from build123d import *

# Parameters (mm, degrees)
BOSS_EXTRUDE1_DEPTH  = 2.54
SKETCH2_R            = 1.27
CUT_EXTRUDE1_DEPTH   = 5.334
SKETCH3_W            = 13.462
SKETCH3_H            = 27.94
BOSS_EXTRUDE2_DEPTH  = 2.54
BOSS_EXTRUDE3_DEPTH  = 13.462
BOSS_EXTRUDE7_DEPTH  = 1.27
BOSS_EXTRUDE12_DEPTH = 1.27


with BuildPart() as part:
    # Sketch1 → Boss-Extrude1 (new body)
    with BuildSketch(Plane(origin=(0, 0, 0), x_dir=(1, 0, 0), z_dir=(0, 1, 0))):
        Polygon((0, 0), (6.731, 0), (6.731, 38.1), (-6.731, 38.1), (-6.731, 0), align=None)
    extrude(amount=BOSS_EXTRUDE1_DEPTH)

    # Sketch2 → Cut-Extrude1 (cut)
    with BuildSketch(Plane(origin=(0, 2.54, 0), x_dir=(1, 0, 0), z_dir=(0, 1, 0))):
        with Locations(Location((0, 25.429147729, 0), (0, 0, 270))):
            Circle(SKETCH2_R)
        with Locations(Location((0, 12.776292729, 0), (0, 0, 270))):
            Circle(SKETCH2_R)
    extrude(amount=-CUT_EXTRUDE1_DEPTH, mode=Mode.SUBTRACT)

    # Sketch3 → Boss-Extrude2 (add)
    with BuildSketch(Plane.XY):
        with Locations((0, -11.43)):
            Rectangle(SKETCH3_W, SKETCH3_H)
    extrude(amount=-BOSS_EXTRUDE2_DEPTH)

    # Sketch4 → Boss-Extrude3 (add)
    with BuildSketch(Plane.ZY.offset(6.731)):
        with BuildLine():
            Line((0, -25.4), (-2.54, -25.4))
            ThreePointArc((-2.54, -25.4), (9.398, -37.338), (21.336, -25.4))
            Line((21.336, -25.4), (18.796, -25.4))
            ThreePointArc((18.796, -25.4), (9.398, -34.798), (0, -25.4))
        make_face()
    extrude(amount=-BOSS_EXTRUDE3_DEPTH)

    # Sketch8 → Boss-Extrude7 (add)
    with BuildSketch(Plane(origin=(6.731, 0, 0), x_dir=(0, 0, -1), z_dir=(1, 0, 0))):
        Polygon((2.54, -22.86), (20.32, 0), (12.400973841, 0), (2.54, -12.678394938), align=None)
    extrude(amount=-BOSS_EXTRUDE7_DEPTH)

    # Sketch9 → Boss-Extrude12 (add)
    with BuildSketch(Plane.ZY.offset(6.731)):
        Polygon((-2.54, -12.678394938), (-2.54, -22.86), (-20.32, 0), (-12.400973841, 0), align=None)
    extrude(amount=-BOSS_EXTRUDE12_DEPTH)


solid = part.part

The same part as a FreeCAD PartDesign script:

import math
import FreeCAD as App
import Part
import Sketcher

V = App.Vector
Q = App.Units.Quantity

doc = App.newDocument("Part")
body = doc.addObject("PartDesign::Body", "Body")

# Sketch on XZ plane
sketch1 = doc.addObject("Sketcher::SketchObject", "Sketch")
body.addObject(sketch1)
sketch1.AttachmentSupport = (doc.XZ_Plane, [""])
sketch1.MapMode = "FlatFace"
sketch1.addGeometry([
    Part.LineSegment(V(6.731, 0, 0), V(6.731, -38.1, 0)),
    Part.LineSegment(V(6.731, -38.1, 0), V(-6.731, -38.1, 0)),
    Part.LineSegment(V(-6.731, -38.1, 0), V(-6.731, 0, 0)),
    Part.LineSegment(V(-6.731, 0, 0), V(6.731, 0, 0)),
], False)
sketch1.addConstraint([
    Sketcher.Constraint("Coincident", 0, 2, 1, 1),
    Sketcher.Constraint("Coincident", 1, 2, 2, 1),
    Sketcher.Constraint("Coincident", 2, 2, 3, 1),
    Sketcher.Constraint("Coincident", 3, 2, 0, 1),
    Sketcher.Constraint("Vertical", 0),
    Sketcher.Constraint("Horizontal", 1),
    Sketcher.Constraint("Vertical", 2),
    Sketcher.Constraint("Horizontal", 3),
    Sketcher.Constraint("Symmetric", 2, 2, 3, 2, -1, 1),
    Sketcher.Constraint("DistanceY", 0, 2, 0, 1, Q("1.5 in")),
    Sketcher.Constraint("DistanceX", 1, 2, 1, 1, Q("0.53 in")),
])
pad1 = doc.addObject("PartDesign::Pad", "Pad")
body.addObject(pad1)
pad1.Profile = sketch1
pad1.Length = Q("0.1 in")
pad1.Reversed = True

# Sketch on XZ plane
sketch2 = doc.addObject("Sketcher::SketchObject", "Sketch001")
body.addObject(sketch2)
sketch2.AttachmentSupport = (doc.XZ_Plane, [""])
sketch2.MapMode = "FlatFace"
sketch2.AttachmentOffset = App.Placement(V(0, 0, -0.1 * 25.4), App.Rotation())
sketch2.addGeometry([
    Part.Circle(V(0, -25.429148, 0), V(0, 0, 1), 1.27),
    Part.Circle(V(0, -12.776293, 0), V(0, 0, 1), 1.27),
], False)
sketch2.addConstraint([
    Sketcher.Constraint("Equal", 0, 1),
    Sketcher.Constraint("PointOnObject", 0, 3, -2),
    Sketcher.Constraint("PointOnObject", 1, 3, -2),
    Sketcher.Constraint("Diameter", 0, Q("0.1 in")),
    Sketcher.Constraint("DistanceY", 0, 3, -1, 1, Q("25.429148 mm")),
    Sketcher.Constraint("DistanceY", 1, 3, -1, 1, Q("12.776293 mm")),
])
pocket1 = doc.addObject("PartDesign::Pocket", "Pocket")
body.addObject(pocket1)
pocket1.Profile = sketch2
pocket1.Length = Q("0.21 in")
pocket1.Reversed = True

# Sketch on XY plane
sketch3 = doc.addObject("Sketcher::SketchObject", "Sketch002")
body.addObject(sketch3)
sketch3.AttachmentSupport = (doc.XY_Plane, [""])
sketch3.MapMode = "FlatFace"
sketch3.addGeometry([
    Part.LineSegment(V(-6.731, 2.54, 0), V(-6.731, -25.4, 0)),
    Part.LineSegment(V(-6.731, -25.4, 0), V(6.731, -25.4, 0)),
    Part.LineSegment(V(6.731, -25.4, 0), V(6.731, 2.54, 0)),
    Part.LineSegment(V(6.731, 2.54, 0), V(-6.731, 2.54, 0)),
], False)
sketch3.addConstraint([
    Sketcher.Constraint("Coincident", 0, 2, 1, 1),
    Sketcher.Constraint("Coincident", 1, 2, 2, 1),
    Sketcher.Constraint("Coincident", 2, 2, 3, 1),
    Sketcher.Constraint("Coincident", 3, 2, 0, 1),
    Sketcher.Constraint("Vertical", 0),
    Sketcher.Constraint("Horizontal", 1),
    Sketcher.Constraint("Vertical", 2),
    Sketcher.Constraint("Horizontal", 3),
    Sketcher.Constraint("DistanceY", 0, 2, 0, 1, Q("1.1 in")),
    Sketcher.Constraint("DistanceY", 0, 2, -1, 1, Q("1 in")),
    Sketcher.Constraint("DistanceX", 1, 1, 1, 2, Q("0.53 in")),
    Sketcher.Constraint("DistanceX", 0, 2, -1, 1, Q("0.265 in")),
])
pad2 = doc.addObject("PartDesign::Pad", "Pad001")
body.addObject(pad2)
pad2.Profile = sketch3
pad2.Length = Q("0.1 in")
pad2.Reversed = True

# Sketch on YZ plane
sketch4 = doc.addObject("Sketcher::SketchObject", "Sketch003")
body.addObject(sketch4)
sketch4.AttachmentSupport = (doc.YZ_Plane, [""])
sketch4.MapMode = "FlatFace"
sketch4.AttachmentOffset = App.Placement(V(0, 0, -0.265 * 25.4), App.Rotation())
sketch4.addGeometry([
    Part.LineSegment(V(-25.4, 0, 0), V(-25.4, -2.54, 0)),
    Part.ArcOfCircle(Part.Circle(V(-25.4, 9.398, 0), V(0, 0, 1), 11.938), math.radians(90), math.radians(270)),
    Part.LineSegment(V(-25.4, 21.336, 0), V(-25.4, 18.796, 0)),
    Part.ArcOfCircle(Part.Circle(V(-25.4, 9.398, 0), V(0, 0, 1), 9.398), math.radians(90), math.radians(270)),
], False)
sketch4.addConstraint([
    Sketcher.Constraint("Coincident", 0, 2, 1, 2),
    Sketcher.Constraint("Coincident", 1, 1, 2, 1),
    Sketcher.Constraint("Coincident", 2, 2, 3, 1),
    Sketcher.Constraint("Coincident", 3, 2, 0, 1),
    Sketcher.Constraint("Vertical", 0),
    Sketcher.Constraint("Vertical", 2),
    Sketcher.Constraint("Coincident", 3, 3, 1, 3),
    Sketcher.Constraint("PointOnObject", 3, 2, -1),
    Sketcher.Constraint("Vertical", 3, 3, 0, 2),
    Sketcher.Constraint("Vertical", 0, 2, 1, 1),
    Sketcher.Constraint("Radius", 1, Q("0.47 in")),
    Sketcher.Constraint("Radius", 3, Q("0.37 in")),
    Sketcher.Constraint("DistanceX", 1, 3, -1, 1, Q("1 in")),
])
pad3 = doc.addObject("PartDesign::Pad", "Pad002")
body.addObject(pad3)
pad3.Profile = sketch4
pad3.Length = Q("0.53 in")

# Sketch on YZ plane
sketch5 = doc.addObject("Sketcher::SketchObject", "Sketch004")
body.addObject(sketch5)
sketch5.AttachmentSupport = (doc.YZ_Plane, [""])
sketch5.MapMode = "FlatFace"
sketch5.AttachmentOffset = App.Placement(V(0, 0, 0.265 * 25.4), App.Rotation())
sketch5.addGeometry([
    Part.LineSegment(V(-22.86, -2.54, 0), V(0, -20.32, 0)),
    Part.LineSegment(V(0, -20.32, 0), V(0, -12.400974, 0)),
    Part.LineSegment(V(0, -12.400974, 0), V(-12.678395, -2.54, 0)),
    Part.LineSegment(V(-12.678395, -2.54, 0), V(-22.86, -2.54, 0)),
], False)
sketch5.addConstraint([
    Sketcher.Constraint("Coincident", 0, 2, 1, 1),
    Sketcher.Constraint("Coincident", 1, 2, 2, 1),
    Sketcher.Constraint("Coincident", 2, 2, 3, 1),
    Sketcher.Constraint("Coincident", 3, 2, 0, 1),
    Sketcher.Constraint("Vertical", 1),
    Sketcher.Constraint("Horizontal", 3),
    Sketcher.Constraint("PointOnObject", 0, 2, -2),
    Sketcher.Constraint("Parallel", 0, 2),
    Sketcher.Constraint("DistanceY", 0, 2, -1, 1, Q("0.8 in")),
    Sketcher.Constraint("DistanceY", 2, 2, -1, 1, Q("0.1 in")),
    Sketcher.Constraint("DistanceX", 3, 2, -1, 1, Q("0.9 in")),
    Sketcher.Constraint("Distance", 2, Q("16.061771 mm")),
])
pad4 = doc.addObject("PartDesign::Pad", "Pad003")
body.addObject(pad4)
pad4.Profile = sketch5
pad4.Length = Q("0.05 in")
pad4.Reversed = True

# Sketch on YZ plane
sketch6 = doc.addObject("Sketcher::SketchObject", "Sketch005")
body.addObject(sketch6)
sketch6.AttachmentSupport = (doc.YZ_Plane, [""])
sketch6.MapMode = "FlatFace"
sketch6.AttachmentOffset = App.Placement(V(0, 0, -0.265 * 25.4), App.Rotation())
sketch6.addGeometry([
    Part.LineSegment(V(-22.86, -2.54, 0), V(-12.678395, -2.54, 0)),
    Part.LineSegment(V(-12.678395, -2.54, 0), V(0, -12.400974, 0)),
    Part.LineSegment(V(0, -12.400974, 0), V(0, -20.32, 0)),
    Part.LineSegment(V(0, -20.32, 0), V(-22.86, -2.54, 0)),
], False)
sketch6.addConstraint([
    Sketcher.Constraint("Coincident", 0, 2, 1, 1),
    Sketcher.Constraint("Coincident", 1, 2, 2, 1),
    Sketcher.Constraint("Coincident", 2, 2, 3, 1),
    Sketcher.Constraint("Coincident", 3, 2, 0, 1),
    Sketcher.Constraint("Horizontal", 0),
    Sketcher.Constraint("Vertical", 2),
    Sketcher.Constraint("PointOnObject", 1, 2, -2),
    Sketcher.Constraint("Parallel", 1, 3),
    Sketcher.Constraint("DistanceY", 0, 2, -1, 1, Q("0.1 in")),
    Sketcher.Constraint("DistanceY", 2, 2, -1, 1, Q("0.8 in")),
    Sketcher.Constraint("DistanceX", 3, 2, -1, 1, Q("0.9 in")),
    Sketcher.Constraint("Distance", 1, Q("16.061771 mm")),
])
pad5 = doc.addObject("PartDesign::Pad", "Pad004")
body.addObject(pad5)
pad5.Profile = sketch6
pad5.Length = Q("0.05 in")

doc.recompute()
